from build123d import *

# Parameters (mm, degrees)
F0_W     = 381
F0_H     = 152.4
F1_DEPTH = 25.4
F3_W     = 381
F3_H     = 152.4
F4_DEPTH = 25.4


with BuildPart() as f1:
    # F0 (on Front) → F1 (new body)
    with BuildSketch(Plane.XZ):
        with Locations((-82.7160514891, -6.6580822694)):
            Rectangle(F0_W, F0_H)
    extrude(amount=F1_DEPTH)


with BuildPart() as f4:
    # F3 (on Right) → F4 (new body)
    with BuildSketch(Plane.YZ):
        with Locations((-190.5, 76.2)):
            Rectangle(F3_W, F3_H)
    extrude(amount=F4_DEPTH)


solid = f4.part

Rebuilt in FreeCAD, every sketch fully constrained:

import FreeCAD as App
import Part
import Sketcher

V = App.Vector
Q = App.Units.Quantity


def add_polygon(sketch, points):
    """Adds a closed chain of lines whose ends are joined by coincident constraints."""
    first, n = sketch.GeometryCount, len(points)
    for a, b in zip(points, points[1:] + points[:1]):
        sketch.addGeometry(Part.LineSegment(App.Vector(*a, 0), App.Vector(*b, 0)), False)
    for i in range(n):
        sketch.addConstraint(Sketcher.Constraint("Coincident", first + i, 2, first + (i + 1) % n, 1))

doc = App.newDocument("Part")
body = doc.addObject("PartDesign::Body", "Body")

sketch1 = body.newObject("Sketcher::SketchObject", "Sketch")
sketch1.AttachmentSupport = (doc.getObject("XZ_Plane"), [""])
sketch1.MapMode = "FlatFace"
add_polygon(sketch1, [(-273, 70), (-273, -83), (108, -83), (108, 70)])
sketch1.addConstraint([
    Sketcher.Constraint("Vertical", 0),
    Sketcher.Constraint("Horizontal", 1),
    Sketcher.Constraint("Vertical", 2),
    Sketcher.Constraint("Horizontal", 3),
    Sketcher.Constraint("DistanceX", 1, 1, 1, 2, Q("15 in")),
    Sketcher.Constraint("DistanceY", 0, 2, 0, 1, Q("6 in")),
    Sketcher.Constraint("DistanceX", 0, 2, -1, 1, 273.216051),
    Sketcher.Constraint("DistanceY", 0, 2, -1, 1, 82.858082),
])
pad1 = body.newObject("PartDesign::Pad", "Pad")
pad1.Profile = sketch1
pad1.Length = Q("1 in")
body2 = doc.addObject("PartDesign::Body", "Body001")

sketch2 = body2.newObject("Sketcher::SketchObject", "Sketch001")
sketch2.AttachmentSupport = (doc.getObject("YZ_Plane001"), [""])
sketch2.MapMode = "FlatFace"
add_polygon(sketch2, [(-381, 152), (-381, 0), (0, 0), (0, 152)])
sketch2.addConstraint([
    Sketcher.Constraint("Vertical", 0),
    Sketcher.Constraint("Horizontal", 1),
    Sketcher.Constraint("Vertical", 2),
    Sketcher.Constraint("Horizontal", 3),
    Sketcher.Constraint("Coincident", 1, 2, -1, 1),
    Sketcher.Constraint("DistanceX", 1, 1, 1, 2, Q("15 in")),
    Sketcher.Constraint("DistanceY", 0, 2, 0, 1, Q("6 in")),
])
pad2 = body2.newObject("PartDesign::Pad", "Pad001")
pad2.Profile = sketch2
pad2.Length = Q("1 in")
body.Visibility = False

doc.recompute()
